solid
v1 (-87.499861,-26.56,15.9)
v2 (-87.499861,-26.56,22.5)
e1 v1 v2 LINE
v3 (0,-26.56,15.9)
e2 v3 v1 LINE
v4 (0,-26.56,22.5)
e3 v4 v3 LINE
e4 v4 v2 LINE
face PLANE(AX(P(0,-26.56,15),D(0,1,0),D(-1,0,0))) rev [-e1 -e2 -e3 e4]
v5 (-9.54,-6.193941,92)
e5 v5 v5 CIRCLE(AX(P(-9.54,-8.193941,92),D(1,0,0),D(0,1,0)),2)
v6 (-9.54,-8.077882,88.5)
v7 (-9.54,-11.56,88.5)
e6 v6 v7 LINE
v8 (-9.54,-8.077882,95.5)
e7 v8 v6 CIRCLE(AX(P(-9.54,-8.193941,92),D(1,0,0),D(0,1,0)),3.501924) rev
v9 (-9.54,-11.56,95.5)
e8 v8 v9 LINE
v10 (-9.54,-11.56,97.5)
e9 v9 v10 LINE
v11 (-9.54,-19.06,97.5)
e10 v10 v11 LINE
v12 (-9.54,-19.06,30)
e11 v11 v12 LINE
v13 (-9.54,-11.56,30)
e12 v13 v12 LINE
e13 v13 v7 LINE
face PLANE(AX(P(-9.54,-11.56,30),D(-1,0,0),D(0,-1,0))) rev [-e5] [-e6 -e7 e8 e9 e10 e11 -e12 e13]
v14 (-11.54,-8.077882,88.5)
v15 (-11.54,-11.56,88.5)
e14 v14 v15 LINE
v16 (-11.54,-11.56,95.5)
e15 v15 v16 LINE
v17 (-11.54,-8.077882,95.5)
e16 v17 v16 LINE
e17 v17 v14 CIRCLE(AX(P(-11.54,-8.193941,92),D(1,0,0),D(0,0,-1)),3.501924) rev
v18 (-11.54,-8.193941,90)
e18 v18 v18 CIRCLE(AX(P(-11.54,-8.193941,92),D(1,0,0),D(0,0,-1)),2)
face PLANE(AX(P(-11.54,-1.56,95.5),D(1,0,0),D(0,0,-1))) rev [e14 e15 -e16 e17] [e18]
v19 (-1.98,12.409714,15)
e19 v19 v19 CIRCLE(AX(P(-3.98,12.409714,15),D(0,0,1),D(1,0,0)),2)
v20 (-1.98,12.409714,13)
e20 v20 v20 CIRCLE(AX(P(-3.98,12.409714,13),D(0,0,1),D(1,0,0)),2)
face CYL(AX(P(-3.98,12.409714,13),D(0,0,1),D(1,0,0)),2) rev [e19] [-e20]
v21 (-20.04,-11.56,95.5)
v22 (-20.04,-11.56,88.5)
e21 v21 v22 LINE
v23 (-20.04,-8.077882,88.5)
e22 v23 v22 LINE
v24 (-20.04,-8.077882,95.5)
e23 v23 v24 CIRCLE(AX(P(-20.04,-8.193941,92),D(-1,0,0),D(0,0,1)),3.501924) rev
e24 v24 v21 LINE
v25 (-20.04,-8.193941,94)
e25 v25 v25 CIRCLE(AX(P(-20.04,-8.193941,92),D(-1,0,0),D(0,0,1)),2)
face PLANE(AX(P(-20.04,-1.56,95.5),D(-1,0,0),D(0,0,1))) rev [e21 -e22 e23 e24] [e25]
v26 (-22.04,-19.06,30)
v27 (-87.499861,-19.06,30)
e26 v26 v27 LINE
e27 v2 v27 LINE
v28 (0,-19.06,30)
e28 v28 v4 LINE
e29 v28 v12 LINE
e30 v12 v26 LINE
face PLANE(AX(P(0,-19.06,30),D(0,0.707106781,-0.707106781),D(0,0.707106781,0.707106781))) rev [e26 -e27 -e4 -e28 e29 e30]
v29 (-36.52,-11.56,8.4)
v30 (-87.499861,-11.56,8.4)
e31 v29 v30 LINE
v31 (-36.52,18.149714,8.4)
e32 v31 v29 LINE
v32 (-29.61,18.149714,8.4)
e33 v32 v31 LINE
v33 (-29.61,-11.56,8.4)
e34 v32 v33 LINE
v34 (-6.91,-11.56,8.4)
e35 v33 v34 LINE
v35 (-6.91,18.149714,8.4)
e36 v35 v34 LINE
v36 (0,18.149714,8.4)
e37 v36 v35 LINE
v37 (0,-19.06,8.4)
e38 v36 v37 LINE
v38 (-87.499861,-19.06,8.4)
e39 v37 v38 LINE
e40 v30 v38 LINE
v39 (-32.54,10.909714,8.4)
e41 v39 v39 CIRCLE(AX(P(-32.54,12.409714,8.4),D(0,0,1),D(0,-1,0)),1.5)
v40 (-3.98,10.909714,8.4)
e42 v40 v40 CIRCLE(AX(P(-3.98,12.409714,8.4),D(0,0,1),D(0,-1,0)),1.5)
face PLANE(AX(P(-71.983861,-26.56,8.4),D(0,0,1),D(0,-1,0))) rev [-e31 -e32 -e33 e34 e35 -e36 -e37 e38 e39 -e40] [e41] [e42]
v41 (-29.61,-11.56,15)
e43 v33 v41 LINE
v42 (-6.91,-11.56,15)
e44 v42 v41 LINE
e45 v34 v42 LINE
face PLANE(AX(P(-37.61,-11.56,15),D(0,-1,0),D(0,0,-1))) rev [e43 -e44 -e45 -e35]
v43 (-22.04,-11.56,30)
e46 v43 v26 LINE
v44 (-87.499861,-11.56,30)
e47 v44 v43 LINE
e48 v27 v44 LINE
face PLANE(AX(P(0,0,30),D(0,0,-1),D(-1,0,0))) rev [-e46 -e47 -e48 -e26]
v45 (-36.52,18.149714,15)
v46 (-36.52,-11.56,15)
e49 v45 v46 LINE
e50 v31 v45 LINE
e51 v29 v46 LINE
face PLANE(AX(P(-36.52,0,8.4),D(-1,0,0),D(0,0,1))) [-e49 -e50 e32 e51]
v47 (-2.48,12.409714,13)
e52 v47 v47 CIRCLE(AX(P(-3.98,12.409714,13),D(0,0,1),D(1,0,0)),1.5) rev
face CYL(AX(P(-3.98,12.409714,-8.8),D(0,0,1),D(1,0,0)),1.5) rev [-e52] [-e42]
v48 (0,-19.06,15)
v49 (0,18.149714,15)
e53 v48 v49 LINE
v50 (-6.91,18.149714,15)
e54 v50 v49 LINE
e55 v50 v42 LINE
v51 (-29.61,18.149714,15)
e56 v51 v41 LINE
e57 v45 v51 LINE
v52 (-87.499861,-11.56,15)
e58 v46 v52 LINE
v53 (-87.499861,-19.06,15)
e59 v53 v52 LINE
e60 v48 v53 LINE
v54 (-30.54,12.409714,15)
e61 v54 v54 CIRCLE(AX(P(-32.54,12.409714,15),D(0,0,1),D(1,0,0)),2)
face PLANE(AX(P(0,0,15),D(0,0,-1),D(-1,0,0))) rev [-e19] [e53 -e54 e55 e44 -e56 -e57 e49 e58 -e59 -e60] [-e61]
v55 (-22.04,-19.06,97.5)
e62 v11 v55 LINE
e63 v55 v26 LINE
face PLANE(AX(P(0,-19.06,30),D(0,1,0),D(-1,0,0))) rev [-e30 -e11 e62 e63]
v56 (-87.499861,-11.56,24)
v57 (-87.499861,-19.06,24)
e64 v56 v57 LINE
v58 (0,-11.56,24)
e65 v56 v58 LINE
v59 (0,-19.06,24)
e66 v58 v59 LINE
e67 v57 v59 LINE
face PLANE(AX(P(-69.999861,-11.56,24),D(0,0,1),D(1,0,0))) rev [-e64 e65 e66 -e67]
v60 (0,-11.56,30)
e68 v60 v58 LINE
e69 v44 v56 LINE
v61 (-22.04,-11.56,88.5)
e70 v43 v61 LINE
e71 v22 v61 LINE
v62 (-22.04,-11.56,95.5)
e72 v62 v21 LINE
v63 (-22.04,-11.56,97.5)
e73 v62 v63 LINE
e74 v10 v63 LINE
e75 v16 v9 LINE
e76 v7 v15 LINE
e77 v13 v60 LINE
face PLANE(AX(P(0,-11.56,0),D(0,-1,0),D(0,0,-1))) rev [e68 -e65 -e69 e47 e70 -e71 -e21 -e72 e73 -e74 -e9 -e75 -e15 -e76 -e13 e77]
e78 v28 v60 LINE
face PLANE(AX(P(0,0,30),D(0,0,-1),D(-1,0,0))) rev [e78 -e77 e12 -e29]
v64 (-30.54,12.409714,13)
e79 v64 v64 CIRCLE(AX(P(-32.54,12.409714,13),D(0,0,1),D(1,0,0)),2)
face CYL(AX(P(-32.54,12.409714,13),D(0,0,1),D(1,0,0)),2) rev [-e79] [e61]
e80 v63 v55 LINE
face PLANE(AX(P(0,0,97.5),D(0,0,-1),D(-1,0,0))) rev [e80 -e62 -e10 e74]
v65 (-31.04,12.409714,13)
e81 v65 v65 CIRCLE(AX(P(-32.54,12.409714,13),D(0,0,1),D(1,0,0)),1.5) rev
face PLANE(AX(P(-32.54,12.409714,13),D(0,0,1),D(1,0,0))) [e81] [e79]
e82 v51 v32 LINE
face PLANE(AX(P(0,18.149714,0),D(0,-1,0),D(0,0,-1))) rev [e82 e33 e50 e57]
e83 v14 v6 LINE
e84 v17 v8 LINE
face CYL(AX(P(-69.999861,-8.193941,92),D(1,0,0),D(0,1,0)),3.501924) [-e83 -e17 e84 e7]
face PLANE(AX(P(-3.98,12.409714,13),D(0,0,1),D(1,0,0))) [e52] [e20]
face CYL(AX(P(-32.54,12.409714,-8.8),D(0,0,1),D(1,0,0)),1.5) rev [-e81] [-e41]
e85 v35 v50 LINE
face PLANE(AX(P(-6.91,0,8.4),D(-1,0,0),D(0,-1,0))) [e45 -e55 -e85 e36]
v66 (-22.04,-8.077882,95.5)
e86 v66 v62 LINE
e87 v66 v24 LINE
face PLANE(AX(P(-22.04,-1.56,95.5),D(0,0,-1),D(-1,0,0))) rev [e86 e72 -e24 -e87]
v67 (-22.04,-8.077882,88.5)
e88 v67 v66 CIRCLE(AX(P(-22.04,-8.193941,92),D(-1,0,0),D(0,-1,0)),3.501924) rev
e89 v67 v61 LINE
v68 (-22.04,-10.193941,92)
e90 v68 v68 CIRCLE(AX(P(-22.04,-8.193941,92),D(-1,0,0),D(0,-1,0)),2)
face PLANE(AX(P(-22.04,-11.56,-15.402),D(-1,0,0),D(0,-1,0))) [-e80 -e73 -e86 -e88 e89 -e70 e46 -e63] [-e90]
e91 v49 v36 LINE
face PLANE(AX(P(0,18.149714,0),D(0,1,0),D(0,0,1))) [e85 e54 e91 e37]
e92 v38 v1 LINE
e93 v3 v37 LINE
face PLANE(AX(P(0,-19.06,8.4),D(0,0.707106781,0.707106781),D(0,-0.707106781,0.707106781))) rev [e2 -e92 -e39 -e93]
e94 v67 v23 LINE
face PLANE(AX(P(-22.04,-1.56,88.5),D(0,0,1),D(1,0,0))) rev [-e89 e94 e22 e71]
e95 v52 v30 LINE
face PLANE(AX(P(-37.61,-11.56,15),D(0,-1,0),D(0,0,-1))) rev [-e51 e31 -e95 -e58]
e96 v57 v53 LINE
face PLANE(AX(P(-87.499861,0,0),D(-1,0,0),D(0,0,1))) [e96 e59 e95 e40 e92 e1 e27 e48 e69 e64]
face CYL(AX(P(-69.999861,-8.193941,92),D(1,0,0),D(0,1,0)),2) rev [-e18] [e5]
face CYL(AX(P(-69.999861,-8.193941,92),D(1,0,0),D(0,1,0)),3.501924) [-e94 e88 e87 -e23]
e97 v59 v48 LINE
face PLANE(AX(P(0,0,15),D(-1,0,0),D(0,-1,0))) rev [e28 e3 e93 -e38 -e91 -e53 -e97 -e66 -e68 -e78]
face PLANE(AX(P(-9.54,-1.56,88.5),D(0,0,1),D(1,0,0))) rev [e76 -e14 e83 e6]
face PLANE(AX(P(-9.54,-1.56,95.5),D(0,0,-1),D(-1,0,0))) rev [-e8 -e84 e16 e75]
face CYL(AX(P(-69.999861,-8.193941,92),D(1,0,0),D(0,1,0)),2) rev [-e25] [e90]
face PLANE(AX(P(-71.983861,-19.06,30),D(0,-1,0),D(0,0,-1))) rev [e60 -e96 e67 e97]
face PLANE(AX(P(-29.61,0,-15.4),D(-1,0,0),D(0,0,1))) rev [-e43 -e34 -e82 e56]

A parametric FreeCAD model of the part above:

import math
import FreeCAD as App
import Part
import Sketcher

V = App.Vector


def add_polygon(sketch, points):
    """Adds a closed chain of lines whose ends are joined by coincident constraints."""
    first, n = sketch.GeometryCount, len(points)
    for a, b in zip(points, points[1:] + points[:1]):
        sketch.addGeometry(Part.LineSegment(App.Vector(*a, 0), App.Vector(*b, 0)), False)
    for i in range(n):
        sketch.addConstraint(Sketcher.Constraint("Coincident", first + i, 2, first + (i + 1) % n, 1))

doc = App.newDocument("Part")
body = doc.addObject("PartDesign::Body", "Body")

sketch1 = doc.addObject("Sketcher::SketchObject", "Sketch")
body.addObject(sketch1)
sketch1.AttachmentSupport = (doc.XY_Plane, [""])
sketch1.MapMode = "FlatFace"
add_polygon(sketch1, [(0, -27), (0, 0), (-15, 0), (-15, -12), (-38, -12), (-38, 0), (-53, 0), (-53, -12), (-72, -12), (-72, -27)])
sketch1.addConstraint([
    Sketcher.Constraint("Vertical", 0),
    Sketcher.Constraint("Horizontal", 1),
    Sketcher.Constraint("Vertical", 2),
    Sketcher.Constraint("Horizontal", 3),
    Sketcher.Constraint("Vertical", 4),
    Sketcher.Constraint("Horizontal", 5),
    Sketcher.Constraint("Vertical", 6),
    Sketcher.Constraint("Horizontal", 7),
    Sketcher.Constraint("Vertical", 8),
    Sketcher.Constraint("Horizontal", 9),
    Sketcher.Constraint("Coincident", 0, 2, -1, 1),
    Sketcher.Constraint("PointOnObject", 4, 2, -1),
    Sketcher.Constraint("Horizontal", 3, 2, 6, 2),
    Sketcher.Constraint("Equal", 1, 5),
    Sketcher.Constraint("Equal", 5, 8),
    Sketcher.Constraint("DistanceX", 1, 2, 1, 1, 15.0),
    Sketcher.Constraint("DistanceX", 3, 2, 3, 1, 22.61),
    Sketcher.Constraint("DistanceY", 0, 1, 0, 2, 26.56),
    Sketcher.Constraint("DistanceX", 7, 2, 7, 1, 19.373861),
])
pad1 = doc.addObject("PartDesign::Pad", "Pad")
body.addObject(pad1)
pad1.Profile = sketch1
pad1.Length = 15

sketch2 = doc.addObject("Sketcher::SketchObject", "Sketch001")
body.addObject(sketch2)
sketch2.AttachmentSupport = (doc.XY_Plane, [""])
sketch2.MapMode = "FlatFace"
sketch2.AttachmentOffset = App.Placement(V(0, 0, 15), App.Rotation())
add_polygon(sketch2, [(-72, -19), (-72, -27), (0, -27), (0, -19)])
sketch2.addConstraint([
    Sketcher.Constraint("Vertical", 0),
    Sketcher.Constraint("Horizontal", 1),
    Sketcher.Constraint("Vertical", 2),
    Sketcher.Constraint("Horizontal", 3),
    Sketcher.Constraint("PointOnObject", 1, 2, -2),
    Sketcher.Constraint("DistanceY", 0, 2, 0, 1, 7.5),
    Sketcher.Constraint("DistanceY", 0, 2, -1, 1, 26.56),
    Sketcher.Constraint("DistanceX", 1, 1, 1, 2, 71.983861),
])
pad2 = doc.addObject("PartDesign::Pad", "Pad001")
body.addObject(pad2)
pad2.Profile = sketch2
pad2.Length = 15

sketch3 = doc.addObject("Sketcher::SketchObject", "Sketch002")
body.addObject(sketch3)
sketch3.AttachmentSupport = (doc.XZ_Plane, [""])
sketch3.MapMode = "FlatFace"
sketch3.AttachmentOffset = App.Placement(V(0, 0, 19.06), App.Rotation())
add_polygon(sketch3, [(-72, 22), (-72, 30), (0, 30), (0, 22)])
sketch3.addConstraint([
    Sketcher.Constraint("Vertical", 0),
    Sketcher.Constraint("Horizontal", 1),
    Sketcher.Constraint("Vertical", 2),
    Sketcher.Constraint("Horizontal", 3),
    Sketcher.Constraint("PointOnObject", 1, 2, -2),
    Sketcher.Constraint("DistanceY", 0, 1, 0, 2, 7.5),
    Sketcher.Constraint("DistanceY", -1, 1, 0, 2, 30.0),
    Sketcher.Constraint("DistanceX", 1, 1, 1, 2, 71.983861),
])
pad3 = doc.addObject("PartDesign::Pad", "Pad002")
body.addObject(pad3)
pad3.Profile = sketch3
pad3.Length = 7.5
pad3.Reversed = True

sketch4 = doc.addObject("Sketcher::SketchObject", "Sketch003")
body.addObject(sketch4)
sketch4.AttachmentSupport = (doc.YZ_Plane, [""])
sketch4.MapMode = "FlatFace"
add_polygon(sketch4, [(0, 8), (-27, 8), (-27, 0), (0, 0)])
sketch4.addConstraint([
    Sketcher.Constraint("Horizontal", 0),
    Sketcher.Constraint("Vertical", 1),
    Sketcher.Constraint("Horizontal", 2),
    Sketcher.Constraint("Vertical", 3),
    Sketcher.Constraint("Coincident", 2, 2, -1, 1),
    Sketcher.Constraint("DistanceY", 1, 2, 1, 1, 8.4),
    Sketcher.Constraint("DistanceX", 0, 2, 0, 1, 26.56),
])
pocket1 = doc.addObject("PartDesign::Pocket", "Pocket")
body.addObject(pocket1)
pocket1.Profile = sketch4
pocket1.Type = "ThroughAll"

sketch5 = doc.addObject("Sketcher::SketchObject", "Sketch004")
body.addObject(sketch5)
sketch5.AttachmentSupport = (doc.XY_Plane, [""])
sketch5.MapMode = "FlatFace"
sketch5.AttachmentOffset = App.Placement(V(0, 0, 8.4), App.Rotation())
add_polygon(sketch5, [(0, -17), (0, -27), (-72, -27), (-72, -17)])
sketch5.addConstraint([
    Sketcher.Constraint("Vertical", 0),
    Sketcher.Constraint("Horizontal", 1),
    Sketcher.Constraint("Vertical", 2),
    Sketcher.Constraint("Horizontal", 3),
    Sketcher.Constraint("PointOnObject", 0, 2, -2),
    Sketcher.Constraint("DistanceY", 0, 2, 0, 1, 10.0),
    Sketcher.Constraint("DistanceY", 0, 2, -1, 1, 26.56),
    Sketcher.Constraint("DistanceX", 1, 2, 1, 1, 71.983861),
])
pad4 = doc.addObject("PartDesign::Pad", "Pad003")
body.addObject(pad4)
pad4.Profile = sketch5
pad4.Length = 23.8
pad4.Reversed = True

sketch6 = doc.addObject("Sketcher::SketchObject", "Sketch005")
body.addObject(sketch6)
sketch6.AttachmentSupport = (doc.YZ_Plane, [""])
sketch6.MapMode = "FlatFace"
sketch6.AttachmentOffset = App.Placement(V(0, 0, -71.983861), App.Rotation())
add_polygon(sketch6, [(3, -27), (-37, -27), (-37, 35), (3, 35)])
sketch6.addConstraint([
    Sketcher.Constraint("Horizontal", 0),
    Sketcher.Constraint("Vertical", 1),
    Sketcher.Constraint("Horizontal", 2),
    Sketcher.Constraint("Vertical", 3),
    Sketcher.Constraint("DistanceY", 1, 1, 1, 2, 61.591879),
    Sketcher.Constraint("DistanceX", 0, 2, 0, 1, 40.125144),
    Sketcher.Constraint("DistanceX", -1, 1, 2, 2, 2.90626),
    Sketcher.Constraint("DistanceY", 0, 2, -1, 1, 26.929156),
])
pocket2 = doc.addObject("PartDesign::Pocket", "Pocket001")
body.addObject(pocket2)
pocket2.Profile = sketch6
pocket2.Length = 1.984
pocket2.Reversed = True

sketch7 = doc.addObject("Sketcher::SketchObject", "Sketch006")
body.addObject(sketch7)
sketch7.AttachmentSupport = (doc.XY_Plane, [""])
sketch7.MapMode = "FlatFace"
sketch7.AttachmentOffset = App.Placement(V(0, 0, 15), App.Rotation())
add_polygon(sketch7, [(-15, 0), (-15, -12), (-5, -12), (-5, 0)])
sketch7.addConstraint([
    Sketcher.Constraint("Vertical", 0),
    Sketcher.Constraint("Horizontal", 1),
    Sketcher.Constraint("Vertical", 2),
    Sketcher.Constraint("Horizontal", 3),
    Sketcher.Constraint("PointOnObject", 2, 2, -1),
    Sketcher.Constraint("DistanceX", 0, 2, -1, 1, 15.0),
    Sketcher.Constraint("DistanceX", 1, 1, 1, 2, 10.09),
    Sketcher.Constraint("DistanceY", 0, 2, 0, 1, 11.56),
])
pocket3 = doc.addObject("PartDesign::Pocket", "Pocket002")
body.addObject(pocket3)
pocket3.Profile = sketch7
pocket3.Length = 10

sketch8 = doc.addObject("Sketcher::SketchObject", "Sketch007")
body.addObject(sketch8)
sketch8.AttachmentSupport = (doc.XY_Plane, [""])
sketch8.MapMode = "FlatFace"
sketch8.AttachmentOffset = App.Placement(V(0, 0, 8.4), App.Rotation())
add_polygon(sketch8, [(-27.6, 0), (-27.6, -11.6), (-32.5, -11.6), (-32.5, 0)])
sketch8.addConstraint([
    Sketcher.Constraint("Vertical", 0),
    Sketcher.Constraint("Horizontal", 1),
    Sketcher.Constraint("Vertical", 2),
    Sketcher.Constraint("Horizontal", 3),
    Sketcher.Constraint("PointOnObject", 2, 2, -1),
    Sketcher.Constraint("DistanceX", 1, 2, 1, 1, 4.91),
    Sketcher.Constraint("DistanceY", 0, 2, 0, 1, 11.56),
    Sketcher.Constraint("DistanceX", 0, 2, -1, 1, 27.61),
])
pad5 = doc.addObject("PartDesign::Pad", "Pad004")
body.addObject(pad5)
pad5.Profile = sketch8
pad5.Length = 6.6

sketch9 = doc.addObject("Sketcher::SketchObject", "Sketch008")
body.addObject(sketch9)
sketch9.AttachmentSupport = (doc.XY_Plane, [""])
sketch9.MapMode = "FlatFace"
sketch9.AttachmentOffset = App.Placement(V(0, 0, 30), App.Rotation())
add_polygon(sketch9, [(-20, -12), (-20, -27), (-8, -27), (-8, -12)])
sketch9.addConstraint([
    Sketcher.Constraint("Vertical", 0),
    Sketcher.Constraint("Horizontal", 1),
    Sketcher.Constraint("Vertical", 2),
    Sketcher.Constraint("Horizontal", 3),
    Sketcher.Constraint("DistanceY", 0, 2, 0, 1, 15.0),
    Sketcher.Constraint("DistanceX", 1, 1, 1, 2, 12.5),
    Sketcher.Constraint("DistanceX", 0, 2, -1, 1, 20.04),
    Sketcher.Constraint("DistanceY", 0, 2, -1, 1, 26.56),
])
pad6 = doc.addObject("PartDesign::Pad", "Pad005")
body.addObject(pad6)
pad6.Profile = sketch9
pad6.Length = 67.5

sketch10 = doc.addObject("Sketcher::SketchObject", "Sketch009")
body.addObject(sketch10)
sketch10.AttachmentSupport = (doc.XZ_Plane, [""])
sketch10.MapMode = "FlatFace"
sketch10.AttachmentOffset = App.Placement(V(0, 0, 16.56), App.Rotation())
add_polygon(sketch10, [(-28, -9), (-28, 8), (-5, 8), (-5, -9)])
sketch10.addConstraint([
    Sketcher.Constraint("Vertical", 0),
    Sketcher.Constraint("Horizontal", 1),
    Sketcher.Constraint("Vertical", 2),
    Sketcher.Constraint("Horizontal", 3),
    Sketcher.Constraint("DistanceX", 1, 1, 1, 2, 22.7),
    Sketcher.Constraint("DistanceY", 0, 1, 0, 2, 17.2),
    Sketcher.Constraint("DistanceY", -1, 1, 0, 2, 8.4),
    Sketcher.Constraint("DistanceX", 0, 2, -1, 1, 27.61),
])
pad7 = doc.addObject("PartDesign::Pad", "Pad006")
body.addObject(pad7)
pad7.Profile = sketch10
pad7.Length = 5
pad7.Reversed = True

sketch11 = doc.addObject("Sketcher::SketchObject", "Sketch010")
body.addObject(sketch11)
sketch11.AttachmentSupport = (doc.XY_Plane, [""])
sketch11.MapMode = "FlatFace"
sketch11.AttachmentOffset = App.Placement(V(0, 0, 8.4), App.Rotation())
add_polygon(sketch11, [(-38, 0), (-38, -12), (-53, -12), (-53, 0)])
sketch11.addConstraint([
    Sketcher.Constraint("Vertical", 0),
    Sketcher.Constraint("Horizontal", 1),
    Sketcher.Constraint("Vertical", 2),
    Sketcher.Constraint("Horizontal", 3),
    Sketcher.Constraint("PointOnObject", 2, 2, -1),
    Sketcher.Constraint("DistanceX", 1, 2, 1, 1, 15.0),
    Sketcher.Constraint("DistanceY", 0, 2, 0, 1, 11.56),
    Sketcher.Constraint("DistanceX", 0, 2, -1, 1, 37.61),
])
pocket4 = doc.addObject("PartDesign::Pocket", "Pocket003")
body.addObject(pocket4)
pocket4.Profile = sketch11
pocket4.Type = "ThroughAll"
pocket4.Reversed = True

sketch12 = doc.addObject("Sketcher::SketchObject", "Sketch011")
body.addObject(sketch12)
sketch12.AttachmentSupport = (doc.YZ_Plane, [""])
sketch12.MapMode = "FlatFace"
add_polygon(sketch12, [(-11.6, 24), (-19.1, 24), (-19.1, 22.5), (-11.6, 22.5)])
sketch12.addConstraint([
    Sketcher.Constraint("Horizontal", 0),
    Sketcher.Constraint("Vertical", 1),
    Sketcher.Constraint("Horizontal", 2),
    Sketcher.Constraint("Vertical", 3),
    Sketcher.Constraint("DistanceX", 0, 2, 0, 1, 7.5),
    Sketcher.Constraint("DistanceY", 1, 2, 1, 1, 1.5),
    Sketcher.Constraint("DistanceY", -1, 1, 0, 2, 24.0),
    Sketcher.Constraint("DistanceX", 0, 2, -1, 1, 19.06),
])
pocket5 = doc.addObject("PartDesign::Pocket", "Pocket004")
body.addObject(pocket5)
pocket5.Profile = sketch12
pocket5.Type = "ThroughAll"

sketch13 = doc.addObject("Sketcher::SketchObject", "Sketch012")
body.addObject(sketch13)
sketch13.AttachmentSupport = (doc.XY_Plane, [""])
sketch13.MapMode = "FlatFace"
sketch13.AttachmentOffset = App.Placement(V(0, 0, 97.5), App.Rotation())
add_polygon(sketch13, [(-22, -11.6), (-22, -26.6), (-20, -26.6), (-20, -11.6)])
sketch13.addConstraint([
    Sketcher.Constraint("Vertical", 0),
    Sketcher.Constraint("Horizontal", 1),
    Sketcher.Constraint("Vertical", 2),
    Sketcher.Constraint("Horizontal", 3),
    Sketcher.Constraint("DistanceX", 1, 1, 1, 2, 2.0),
    Sketcher.Constraint("DistanceY", 0, 2, 0, 1, 15.0),
    Sketcher.Constraint("DistanceX", 0, 2, -1, 1, 22.04),
    Sketcher.Constraint("DistanceY", 0, 2, -1, 1, 26.56),
])
pad8 = doc.addObject("PartDesign::Pad", "Pad007")
body.addObject(pad8)
pad8.Profile = sketch13
pad8.Type = "UpToFirst"
pad8.Reversed = True

sketch14 = doc.addObject("Sketcher::SketchObject", "Sketch013")
body.addObject(sketch14)
sketch14.AttachmentSupport = (doc.XY_Plane, [""])
sketch14.MapMode = "FlatFace"
sketch14.AttachmentOffset = App.Placement(V(0, 0, 97.5), App.Rotation())
add_polygon(sketch14, [(-9.5, -11.6), (-9.5, -26.6), (-7.5, -26.6), (-7.5, -11.6)])
sketch14.addConstraint([
    Sketcher.Constraint("Vertical", 0),
    Sketcher.Constraint("Horizontal", 1),
    Sketcher.Constraint("Vertical", 2),
    Sketcher.Constraint("Horizontal", 3),
    Sketcher.Constraint("DistanceX", 1, 1, 1, 2, 2.0),
    Sketcher.Constraint("DistanceY", 0, 2, 0, 1, 15.0),
    Sketcher.Constraint("DistanceX", 0, 2, -1, 1, 9.54),
    Sketcher.Constraint("DistanceY", 0, 2, -1, 1, 26.56),
])
pocket6 = doc.addObject("PartDesign::Pocket", "Pocket005")
body.addObject(pocket6)
pocket6.Profile = sketch14
pocket6.Length = 67.5

sketch15 = doc.addObject("Sketcher::SketchObject", "Sketch014")
body.addObject(sketch15)
sketch15.AttachmentSupport = (doc.XY_Plane, [""])
sketch15.MapMode = "FlatFace"
sketch15.AttachmentOffset = App.Placement(V(0, 0, 8.4), App.Rotation())
add_polygon(sketch15, [(-6.9, 0), (-6.9, -11.6), (-4.9, -11.6), (-4.9, 0)])
sketch15.addConstraint([
    Sketcher.Constraint("Vertical", 0),
    Sketcher.Constraint("Horizontal", 1),
    Sketcher.Constraint("Vertical", 2),
    Sketcher.Constraint("Horizontal", 3),
    Sketcher.Constraint("PointOnObject", 2, 2, -1),
    Sketcher.Constraint("DistanceX", 1, 1, 1, 2, 2.0),
    Sketcher.Constraint("DistanceY", 0, 2, 0, 1, 11.56),
    Sketcher.Constraint("DistanceX", 0, 2, -1, 1, 6.91),
])
pad9 = doc.addObject("PartDesign::Pad", "Pad008")
body.addObject(pad9)
pad9.Profile = sketch15
pad9.Length = 6.6

sketch16 = doc.addObject("Sketcher::SketchObject", "Sketch015")
body.addObject(sketch16)
sketch16.AttachmentSupport = (doc.XY_Plane, [""])
sketch16.MapMode = "FlatFace"
sketch16.AttachmentOffset = App.Placement(V(0, 0, 15), App.Rotation())
add_polygon(sketch16, [(-29.6, 0), (-29.6, -11.6), (-27.6, -11.6), (-27.6, 0)])
sketch16.addConstraint([
    Sketcher.Constraint("Vertical", 0),
    Sketcher.Constraint("Horizontal", 1),
    Sketcher.Constraint("Vertical", 2),
    Sketcher.Constraint("Horizontal", 3),
    Sketcher.Constraint("PointOnObject", 2, 2, -1),
    Sketcher.Constraint("DistanceX", 1, 1, 1, 2, 2.0),
    Sketcher.Constraint("DistanceY", 0, 2, 0, 1, 11.56),
    Sketcher.Constraint("DistanceX", 0, 2, -1, 1, 29.61),
])
pocket7 = doc.addObject("PartDesign::Pocket", "Pocket006")
body.addObject(pocket7)
pocket7.Profile = sketch16
pocket7.Type = "ThroughAll"

sketch17 = doc.addObject("Sketcher::SketchObject", "Sketch016")
body.addObject(sketch17)
sketch17.AttachmentSupport = (doc.XY_Plane, [""])
sketch17.MapMode = "FlatFace"
sketch17.AttachmentOffset = App.Placement(V(0, 0, 15), App.Rotation())
add_polygon(sketch17, [(-36.5, 0), (-36.5, -11.6), (-32.5, -11.6), (-32.5, 0)])
sketch17.addConstraint([
    Sketcher.Constraint("Vertical", 0),
    Sketcher.Constraint("Horizontal", 1),
    Sketcher.Constraint("Vertical", 2),
    Sketcher.Constraint("Horizontal", 3),
    Sketcher.Constraint("PointOnObject", 2, 2, -1),
    Sketcher.Constraint("DistanceX", 1, 1, 1, 2, 4.0),
    Sketcher.Constraint("DistanceY", 0, 2, 0, 1, 11.56),
    Sketcher.Constraint("DistanceX", 0, 2, -1, 1, 36.52),
])
pad10 = doc.addObject("PartDesign::Pad", "Pad009")
body.addObject(pad10)
pad10.Profile = sketch17
pad10.Length = 6.6
pad10.Reversed = True

sketch18 = doc.addObject("Sketcher::SketchObject", "Sketch017")
body.addObject(sketch18)
sketch18.AttachmentSupport = (doc.XZ_Plane, [""])
sketch18.MapMode = "FlatFace"
sketch18.AttachmentOffset = App.Placement(V(0, 0, 11.56), App.Rotation())
add_polygon(sketch18, [(-6.9, -8.8), (-6.9, 8.4), (-4.9, 8.4), (-4.9, -8.8)])
sketch18.addConstraint([
    Sketcher.Constraint("Vertical", 0),
    Sketcher.Constraint("Horizontal", 1),
    Sketcher.Constraint("Vertical", 2),
    Sketcher.Constraint("Horizontal", 3),
    Sketcher.Constraint("DistanceX", 1, 1, 1, 2, 2.0),
    Sketcher.Constraint("DistanceY", 0, 1, 0, 2, 17.2),
    Sketcher.Constraint("DistanceY", -1, 1, 0, 2, 8.4),
    Sketcher.Constraint("DistanceX", 0, 2, -1, 1, 6.91),
])
pocket8 = doc.addObject("PartDesign::Pocket", "Pocket007")
body.addObject(pocket8)
pocket8.Profile = sketch18
pocket8.Length = 5
pocket8.Reversed = True

sketch19 = doc.addObject("Sketcher::SketchObject", "Sketch018")
body.addObject(sketch19)
sketch19.AttachmentSupport = (doc.XZ_Plane, [""])
sketch19.MapMode = "FlatFace"
sketch19.AttachmentOffset = App.Placement(V(0, 0, 11.56), App.Rotation())
add_polygon(sketch19, [(-29.6, -8.8), (-29.6, 8.4), (-27.6, 8.4), (-27.6, -8.8)])
sketch19.addConstraint([
    Sketcher.Constraint("Vertical", 0),
    Sketcher.Constraint("Horizontal", 1),
    Sketcher.Constraint("Vertical", 2),
    Sketcher.Constraint("Horizontal", 3),
    Sketcher.Constraint("DistanceX", 1, 1, 1, 2, 2.0),
    Sketcher.Constraint("DistanceY", 0, 1, 0, 2, 17.2),
    Sketcher.Constraint("DistanceY", -1, 1, 0, 2, 8.4),
    Sketcher.Constraint("DistanceX", 0, 2, -1, 1, 29.61),
])
pad11 = doc.addObject("PartDesign::Pad", "Pad010")
body.addObject(pad11)
pad11.Profile = sketch19
pad11.Length = 15

sketch20 = doc.addObject("Sketcher::SketchObject", "Sketch019")
body.addObject(sketch20)
sketch20.AttachmentSupport = (doc.XZ_Plane, [""])
sketch20.MapMode = "FlatFace"
sketch20.AttachmentOffset = App.Placement(V(0, 0, 16.56), App.Rotation())
add_polygon(sketch20, [(-70, -15), (-70, 8), (-30, 8), (-30, -15)])
sketch20.addConstraint([
    Sketcher.Constraint("Vertical", 0),
    Sketcher.Constraint("Horizontal", 1),
    Sketcher.Constraint("Vertical", 2),
    Sketcher.Constraint("Horizontal", 3),
    Sketcher.Constraint("DistanceY", 0, 1, 0, 2, 23.8),
    Sketcher.Constraint("DistanceY", -1, 1, 0, 2, 8.4),
    Sketcher.Constraint("DistanceX", 1, 2, -1, 1, 29.61),
    Sketcher.Constraint("DistanceX", 1, 1, 1, 2, 40.389861),
])
pocket9 = doc.addObject("PartDesign::Pocket", "Pocket008")
body.addObject(pocket9)
pocket9.Profile = sketch20
pocket9.Type = "ThroughAll"
pocket9.Reversed = True

sketch21 = doc.addObject("Sketcher::SketchObject", "Sketch020")
body.addObject(sketch21)
sketch21.AttachmentSupport = (doc.XZ_Plane, [""])
sketch21.MapMode = "FlatFace"
sketch21.AttachmentOffset = App.Placement(V(0, 0, 16.56), App.Rotation())
add_polygon(sketch21, [(-7, -15), (-7, 8), (0, 8), (0, -15)])
sketch21.addConstraint([
    Sketcher.Constraint("Vertical", 0),
    Sketcher.Constraint("Horizontal", 1),
    Sketcher.Constraint("Vertical", 2),
    Sketcher.Constraint("Horizontal", 3),
    Sketcher.Constraint("PointOnObject", 1, 2, -2),
    Sketcher.Constraint("DistanceY", 0, 1, 0, 2, 23.8),
    Sketcher.Constraint("DistanceX", 1, 1, 1, 2, 6.91),
    Sketcher.Constraint("DistanceY", -1, 1, 0, 2, 8.4),
])
pocket10 = doc.addObject("PartDesign::Pocket", "Pocket009")
body.addObject(pocket10)
pocket10.Profile = sketch21
pocket10.Type = "ThroughAll"
pocket10.Reversed = True

sketch22 = doc.addObject("Sketcher::SketchObject", "Sketch021")
body.addObject(sketch22)
sketch22.AttachmentSupport = (doc.XZ_Plane, [""])
sketch22.MapMode = "FlatFace"
sketch22.AttachmentOffset = App.Placement(V(0, 0, 16.56), App.Rotation())
add_polygon(sketch22, [(-30, -15), (-30, -9), (-7, -9), (-7, -15)])
sketch22.addConstraint([
    Sketcher.Constraint("Vertical", 0),
    Sketcher.Constraint("Horizontal", 1),
    Sketcher.Constraint("Vertical", 2),
    Sketcher.Constraint("Horizontal", 3),
    Sketcher.Constraint("DistanceX", 1, 1, 1, 2, 22.7),
    Sketcher.Constraint("DistanceY", 0, 1, 0, 2, 6.6),
    Sketcher.Constraint("DistanceY", 0, 2, -1, 1, 8.8),
    Sketcher.Constraint("DistanceX", 0, 2, -1, 1, 29.61),
])
pocket11 = doc.addObject("PartDesign::Pocket", "Pocket010")
body.addObject(pocket11)
pocket11.Profile = sketch22
pocket11.Type = "ThroughAll"
pocket11.Reversed = True

sketch23 = doc.addObject("Sketcher::SketchObject", "Sketch022")
body.addObject(sketch23)
sketch23.AttachmentSupport = (doc.YZ_Plane, [""])
sketch23.MapMode = "FlatFace"
sketch23.AttachmentOffset = App.Placement(V(0, 0, -29.61), App.Rotation())
add_polygon(sketch23, [(-19, -9), (-27, -9), (-27, 8), (-19, 8)])
sketch23.addConstraint([
    Sketcher.Constraint("Horizontal", 0),
    Sketcher.Constraint("Vertical", 1),
    Sketcher.Constraint("Horizontal", 2),
    Sketcher.Constraint("Vertical", 3),
    Sketcher.Constraint("DistanceX", 0, 2, 0, 1, 7.5),
    Sketcher.Constraint("DistanceY", 1, 1, 1, 2, 17.2),
    Sketcher.Constraint("DistanceY", 0, 2, -1, 1, 8.8),
    Sketcher.Constraint("DistanceX", 0, 2, -1, 1, 26.56),
])
pocket12 = doc.addObject("PartDesign::Pocket", "Pocket011")
body.addObject(pocket12)
pocket12.Profile = sketch23
pocket12.Type = "ThroughAll"
pocket12.Reversed = True

sketch24 = doc.addObject("Sketcher::SketchObject", "Sketch023")
body.addObject(sketch24)
sketch24.AttachmentSupport = (doc.XY_Plane, [""])
sketch24.MapMode = "FlatFace"
sketch24.AttachmentOffset = App.Placement(V(0, 0, 8.4), App.Rotation())
sketch24.addGeometry(Part.Circle(V(-4, -5.7, 0), V(0, 0, 1), 1.1), False)
sketch24.addConstraint([
    Sketcher.Constraint("Diameter", 0, 2.1),
    Sketcher.Constraint("DistanceX", 0, 3, -1, 1, 3.98),
    Sketcher.Constraint("DistanceY", 0, 3, -1, 1, 5.74),
])
pocket13 = doc.addObject("PartDesign::Pocket", "Pocket012")
body.addObject(pocket13)
pocket13.Profile = sketch24
pocket13.Type = "ThroughAll"
pocket13.Reversed = True

sketch25 = doc.addObject("Sketcher::SketchObject", "Sketch024")
body.addObject(sketch25)
sketch25.AttachmentSupport = (doc.XY_Plane, [""])
sketch25.MapMode = "FlatFace"
sketch25.AttachmentOffset = App.Placement(V(0, 0, 8.4), App.Rotation())
sketch25.addGeometry(Part.Circle(V(-32.5, -5.7, 0), V(0, 0, 1), 1.1), False)
sketch25.addConstraint([
    Sketcher.Constraint("Diameter", 0, 2.1),
    Sketcher.Constraint("DistanceX", 0, 3, -1, 1, 32.54),
    Sketcher.Constraint("DistanceY", 0, 3, -1, 1, 5.74),
])
pocket14 = doc.addObject("PartDesign::Pocket", "Pocket013")
body.addObject(pocket14)
pocket14.Profile = sketch25
pocket14.Type = "ThroughAll"
pocket14.Reversed = True

sketch26 = doc.addObject("Sketcher::SketchObject", "Sketch025")
body.addObject(sketch26)
sketch26.AttachmentSupport = (doc.YZ_Plane, [""])
sketch26.MapMode = "FlatFace"
sketch26.AttachmentOffset = App.Placement(V(0, 0, -22.04), App.Rotation())
add_polygon(sketch26, [(-19, 30), (-27, 30), (-27, 98), (-19, 98)])
sketch26.addConstraint([
    Sketcher.Constraint("Horizontal", 0),
    Sketcher.Constraint("Vertical", 1),
    Sketcher.Constraint("Horizontal", 2),
    Sketcher.Constraint("Vertical", 3),
    Sketcher.Constraint("DistanceX", 0, 2, 0, 1, 7.5),
    Sketcher.Constraint("DistanceY", 1, 1, 1, 2, 67.5),
    Sketcher.Constraint("DistanceY", -1, 1, 0, 2, 30.0),
    Sketcher.Constraint("DistanceX", 0, 2, -1, 1, 26.56),
])
pocket15 = doc.addObject("PartDesign::Pocket", "Pocket014")
body.addObject(pocket15)
pocket15.Profile = sketch26
pocket15.Type = "ThroughAll"
pocket15.Reversed = True

sketch27 = doc.addObject("Sketcher::SketchObject", "Sketch026")
body.addObject(sketch27)
sketch27.AttachmentSupport = (doc.YZ_Plane, [""])
sketch27.MapMode = "FlatFace"
sketch27.AttachmentOffset = App.Placement(V(0, 0, -69.999861), App.Rotation())
add_polygon(sketch27, [(-27, 16), (-19, 8), (-27, 8)])
sketch27.addConstraint([
    Sketcher.Constraint("Horizontal", 1),
    Sketcher.Constraint("Vertical", 2),
    Sketcher.Constraint("Equal", 1, 2),
    Sketcher.Constraint("DistanceX", 1, 2, 1, 1, 7.5),
    Sketcher.Constraint("DistanceY", -1, 1, 0, 2, 8.4),
    Sketcher.Constraint("DistanceX", 0, 2, -1, 1, 19.06),
])
pocket16 = doc.addObject("PartDesign::Pocket", "Pocket015")
body.addObject(pocket16)
pocket16.Profile = sketch27
pocket16.Type = "ThroughAll"
pocket16.Reversed = True

sketch28 = doc.addObject("Sketcher::SketchObject", "Sketch027")
body.addObject(sketch28)
sketch28.AttachmentSupport = (doc.YZ_Plane, [""])
sketch28.MapMode = "FlatFace"
sketch28.AttachmentOffset = App.Placement(V(0, 0, -69.999861), App.Rotation())
add_polygon(sketch28, [(-19, 30), (-27, 22), (-27, 30)])
sketch28.addConstraint([
    Sketcher.Constraint("Vertical", 1),
    Sketcher.Constraint("Horizontal", 2),
    Sketcher.Constraint("Equal", 2, 1),
    Sketcher.Constraint("DistanceX", 2, 1, 2, 2, 7.5),
    Sketcher.Constraint("DistanceY", -1, 1, 1, 2, 30.0),
    Sketcher.Constraint("DistanceX", 0, 2, -1, 1, 26.56),
])
pocket17 = doc.addObject("PartDesign::Pocket", "Pocket016")
body.addObject(pocket17)
pocket17.Profile = sketch28
pocket17.Type = "ThroughAll"
pocket17.Reversed = True

sketch29 = doc.addObject("Sketcher::SketchObject", "Sketch028")
body.addObject(sketch29)
sketch29.AttachmentSupport = (doc.XZ_Plane, [""])
sketch29.MapMode = "FlatFace"
sketch29.AttachmentOffset = App.Placement(V(0, 0, 11.56), App.Rotation())
add_polygon(sketch29, [(-22, 88.5), (-22, 95.5), (-20, 95.5), (-20, 88.5)])
sketch29.addConstraint([
    Sketcher.Constraint("Vertical", 0),
    Sketcher.Constraint("Horizontal", 1),
    Sketcher.Constraint("Vertical", 2),
    Sketcher.Constraint("Horizontal", 3),
    Sketcher.Constraint("DistanceX", 1, 1, 1, 2, 2.0),
    Sketcher.Constraint("DistanceY", 0, 1, 0, 2, 7.0),
    Sketcher.Constraint("DistanceY", -1, 1, 0, 2, 95.5),
    Sketcher.Constraint("DistanceX", 0, 2, -1, 1, 22.04),
])
pad12 = doc.addObject("PartDesign::Pad", "Pad011")
body.addObject(pad12)
pad12.Profile = sketch29
pad12.Length = 10
pad12.Reversed = True

sketch30 = doc.addObject("Sketcher::SketchObject", "Sketch029")
body.addObject(sketch30)
sketch30.AttachmentSupport = (doc.XZ_Plane, [""])
sketch30.MapMode = "FlatFace"
sketch30.AttachmentOffset = App.Placement(V(0, 0, 11.56), App.Rotation())
add_polygon(sketch30, [(-11.5, 88.5), (-11.5, 95.5), (-9.5, 95.5), (-9.5, 88.5)])
sketch30.addConstraint([
    Sketcher.Constraint("Vertical", 0),
    Sketcher.Constraint("Horizontal", 1),
    Sketcher.Constraint("Vertical", 2),
    Sketcher.Constraint("Horizontal", 3),
    Sketcher.Constraint("DistanceX", 1, 1, 1, 2, 2.0),
    Sketcher.Constraint("DistanceY", 0, 1, 0, 2, 7.0),
    Sketcher.Constraint("DistanceY", -1, 1, 0, 2, 95.5),
    Sketcher.Constraint("DistanceX", 0, 2, -1, 1, 11.54),
])
pad13 = doc.addObject("PartDesign::Pad", "Pad012")
body.addObject(pad13)
pad13.Profile = sketch30
pad13.Length = 10
pad13.Reversed = True

sketch31 = doc.addObject("Sketcher::SketchObject", "Sketch030")
body.addObject(sketch31)
sketch31.AttachmentSupport = (doc.YZ_Plane, [""])
sketch31.MapMode = "FlatFace"
sketch31.AttachmentOffset = App.Placement(V(0, 0, -9.54), App.Rotation())
sketch31.addGeometry([
    Part.LineSegment(V(-1.6, 95.5, 0), V(-5.1, 95.5, 0)),
    Part.ArcOfCircle(Part.Circle(V(-5.1, 92, 0), V(0, 0, 1), 3.5), math.radians(0), math.radians(90)),
    Part.LineSegment(V(-1.6, 92, 0), V(-1.6, 95.5, 0)),
    Part.ArcOfCircle(Part.Circle(V(-5.1, 92, 0), V(0, 0, 1), 3.5), math.radians(-90), math.radians(0)),
    Part.LineSegment(V(-5.1, 88.5, 0), V(-1.6, 88.5, 0)),
    Part.LineSegment(V(-1.6, 88.5, 0), V(-1.6, 92, 0)),
], False)
sketch31.addConstraint([
    Sketcher.Constraint("Tangent", 0, 2, 1, 2),
    Sketcher.Constraint("Tangent", 1, 1, 2, 1),
    Sketcher.Constraint("Coincident", 2, 2, 0, 1),
    Sketcher.Constraint("Tangent", 3, 1, 4, 1),
    Sketcher.Constraint("Coincident", 4, 2, 5, 1),
    Sketcher.Constraint("Tangent", 5, 2, 3, 2),
    Sketcher.Constraint("Horizontal", 0),
    Sketcher.Constraint("Vertical", 2),
    Sketcher.Constraint("Horizontal", 4),
    Sketcher.Constraint("Vertical", 5),
    Sketcher.Constraint("Coincident", 3, 3, 1, 3),
    Sketcher.Constraint("Equal", 1, 3),
    Sketcher.Constraint("Radius", 1, 3.5),
    Sketcher.Constraint("DistanceY", -1, 1, 1, 3, 92.0),
    Sketcher.Constraint("DistanceX", 1, 3, -1, 1, 5.06),
])
pocket18 = doc.addObject("PartDesign::Pocket", "Pocket017")
body.addObject(pocket18)
pocket18.Profile = sketch31
pocket18.Type = "ThroughAll"

sketch32 = doc.addObject("Sketcher::SketchObject", "Sketch031")
body.addObject(sketch32)
sketch32.AttachmentSupport = (doc.YZ_Plane, [""])
sketch32.MapMode = "FlatFace"
sketch32.AttachmentOffset = App.Placement(V(0, 0, -9.54), App.Rotation())
sketch32.addGeometry([
    Part.ArcOfCircle(Part.Circle(V(-8.2, 92, 0), V(0, 0, 1), 3.5), math.radians(-88), math.radians(88)),
    Part.LineSegment(V(-8.1, 88.5, 0), V(-5.1, 88.5, 0)),
    Part.ArcOfCircle(Part.Circle(V(-5.1, 92, 0), V(0, 0, 1), 3.5), math.radians(-90), math.radians(90)),
    Part.LineSegment(V(-5.1, 95.5, 0), V(-8.1, 95.5, 0)),
], False)
sketch32.addConstraint([
    Sketcher.Constraint("Coincident", 0, 1, 1, 1),
    Sketcher.Constraint("Tangent", 1, 2, 2, 1),
    Sketcher.Constraint("Tangent", 2, 2, 3, 1),
    Sketcher.Constraint("Coincident", 3, 2, 0, 2),
    Sketcher.Constraint("Horizontal", 1),
    Sketcher.Constraint("Horizontal", 3),
    Sketcher.Constraint("Horizontal", 0, 3, 2, 3),
    Sketcher.Constraint("Radius", 2, 3.5),
    Sketcher.Constraint("DistanceY", -1, 1, 0, 3, 92.0),
    Sketcher.Constraint("DistanceX", 2, 3, -1, 1, 5.06),
    Sketcher.Constraint("Radius", 0, 3.501924),
    Sketcher.Constraint("DistanceX", 1, 1, 1, 2, 3.017882),
])
pocket19 = doc.addObject("PartDesign::Pocket", "Pocket018")
body.addObject(pocket19)
pocket19.Profile = sketch32
pocket19.Type = "ThroughAll"

sketch33 = doc.addObject("Sketcher::SketchObject", "Sketch032")
body.addObject(sketch33)
sketch33.AttachmentSupport = (doc.YZ_Plane, [""])
sketch33.MapMode = "FlatFace"
sketch33.AttachmentOffset = App.Placement(V(0, 0, -9.54), App.Rotation())
sketch33.addGeometry(Part.Circle(V(-8.2, 92, 0), V(0, 0, 1), 2), False)
sketch33.addConstraint([
    Sketcher.Constraint("Diameter", 0, 4.0),
    Sketcher.Constraint("DistanceY", -1, 1, 0, 3, 92.0),
    Sketcher.Constraint("DistanceX", 0, 3, -1, 1, 8.193941),
])
pocket20 = doc.addObject("PartDesign::Pocket", "Pocket019")
body.addObject(pocket20)
pocket20.Profile = sketch33
pocket20.Type = "ThroughAll"

sketch34 = doc.addObject("Sketcher::SketchObject", "Sketch033")
body.addObject(sketch34)
sketch34.AttachmentSupport = (doc.YZ_Plane, [""])
sketch34.MapMode = "FlatFace"
sketch34.AttachmentOffset = App.Placement(V(0, 0, -69.999861), App.Rotation())
add_polygon(sketch34, [(-12, 8), (-19, 8), (-27, 16), (-27, 22), (-19, 30), (-12, 30), (-12, 24), (-19, 24), (-19, 15), (-12, 15)])
sketch34.addConstraint([
    Sketcher.Constraint("Horizontal", 0),
    Sketcher.Constraint("Vertical", 2),
    Sketcher.Constraint("Horizontal", 4),
    Sketcher.Constraint("Vertical", 5),
    Sketcher.Constraint("Horizontal", 6),
    Sketcher.Constraint("Vertical", 7),
    Sketcher.Constraint("Horizontal", 8),
    Sketcher.Constraint("Vertical", 9),
    Sketcher.Constraint("Perpendicular", 1, 3),
    Sketcher.Constraint("Vertical", 0, 2, 3, 2),
    Sketcher.Constraint("Vertical", 3, 2, 6, 2),
    Sketcher.Constraint("Vertical", 5, 2, 8, 2),
    Sketcher.Constraint("Equal", 2, 9),
    Sketcher.Constraint("Equal", 1, 3),
    Sketcher.Constraint("DistanceY", 5, 2, 5, 1, 6.0),
    Sketcher.Constraint("DistanceY", 7, 2, 7, 1, 9.0),
    Sketcher.Constraint("DistanceX", 0, 2, 0, 1, 7.5),
    Sketcher.Constraint("DistanceY", 2, 1, 2, 2, 6.6),
    Sketcher.Constraint("DistanceY", -1, 1, 3, 2, 30.0),
    Sketcher.Constraint("DistanceX", 0, 2, -1, 1, 19.06),
])
pad14 = doc.addObject("PartDesign::Pad", "Pad013")
body.addObject(pad14)
pad14.Profile = sketch34
pad14.Length = 17.5
pad14.Reversed = True

sketch35 = doc.addObject("Sketcher::SketchObject", "Sketch034")
body.addObject(sketch35)
sketch35.AttachmentSupport = (doc.XZ_Plane, [""])
sketch35.MapMode = "FlatFace"
add_polygon(sketch35, [(-7, 8), (-7, 15), (0, 15), (0, 8)])
add_polygon(sketch35, [(-37, 8), (-37, 15), (-30, 15), (-30, 8)])
sketch35.addConstraint([
    Sketcher.Constraint("Vertical", 0),
    Sketcher.Constraint("Horizontal", 1),
    Sketcher.Constraint("Vertical", 2),
    Sketcher.Constraint("Horizontal", 3),
    Sketcher.Constraint("Vertical", 4),
    Sketcher.Constraint("Horizontal", 5),
    Sketcher.Constraint("Vertical", 6),
    Sketcher.Constraint("Horizontal", 7),
    Sketcher.Constraint("PointOnObject", 1, 2, -2),
    Sketcher.Constraint("Horizontal", 1, 2, 4, 2),
    Sketcher.Constraint("Horizontal", 3, 2, 6, 2),
    Sketcher.Constraint("Equal", 3, 5),
    Sketcher.Constraint("DistanceY", 0, 1, 0, 2, 6.6),
    Sketcher.Constraint("DistanceY", -1, 1, 0, 2, 15.0),
    Sketcher.Constraint("DistanceX", 1, 1, 1, 2, 6.91),
    Sketcher.Constraint("DistanceX", 5, 2, 0, 2, 22.7),
])
pad15 = doc.addObject("PartDesign::Pad", "Pad014")
body.addObject(pad15)
pad15.Profile = sketch35
pad15.Length = 18.149714
pad15.Reversed = True

sketch36 = doc.addObject("Sketcher::SketchObject", "Sketch035")
body.addObject(sketch36)
sketch36.AttachmentSupport = (doc.XY_Plane, [""])
sketch36.MapMode = "FlatFace"
sketch36.AttachmentOffset = App.Placement(V(0, 0, 15), App.Rotation())
sketch36.addGeometry([
    Part.Circle(V(-32.5, 12.4, 0), V(0, 0, 1), 1.5),
    Part.Circle(V(-4, 12.4, 0), V(0, 0, 1), 1.5),
], False)
sketch36.addConstraint([
    Sketcher.Constraint("Equal", 0, 1),
    Sketcher.Constraint("Horizontal", 0, 3, 1, 3),
    Sketcher.Constraint("Diameter", 0, 3.0),
    Sketcher.Constraint("DistanceX", 0, 3, -1, 1, 32.54),
    Sketcher.Constraint("DistanceX", 1, 3, -1, 1, 3.98),
    Sketcher.Constraint("DistanceY", -1, 1, 0, 3, 12.409714),
])
pocket21 = doc.addObject("PartDesign::Pocket", "Pocket020")
body.addObject(pocket21)
pocket21.Profile = sketch36
pocket21.Type = "ThroughAll"

sketch37 = doc.addObject("Sketcher::SketchObject", "Sketch036")
body.addObject(sketch37)
sketch37.AttachmentSupport = (doc.XY_Plane, [""])
sketch37.MapMode = "FlatFace"
sketch37.AttachmentOffset = App.Placement(V(0, 0, 15), App.Rotation())
sketch37.addGeometry([
    Part.Circle(V(-32.5, 12.4, 0), V(0, 0, 1), 2),
    Part.Circle(V(-4, 12.4, 0), V(0, 0, 1), 2),
], False)
sketch37.addConstraint([
    Sketcher.Constraint("Equal", 0, 1),
    Sketcher.Constraint("Horizontal", 0, 3, 1, 3),
    Sketcher.Constraint("Diameter", 0, 4.0),
    Sketcher.Constraint("DistanceX", 0, 3, -1, 1, 32.54),
    Sketcher.Constraint("DistanceX", 1, 3, -1, 1, 3.98),
    Sketcher.Constraint("DistanceY", -1, 1, 0, 3, 12.409714),
])
pocket22 = doc.addObject("PartDesign::Pocket", "Pocket021")
body.addObject(pocket22)
pocket22.Profile = sketch37
pocket22.Length = 2

sketch38 = doc.addObject("Sketcher::SketchObject", "Sketch037")
body.addObject(sketch38)
sketch38.AttachmentSupport = (doc.XY_Plane, [""])
sketch38.MapMode = "FlatFace"
sketch38.AttachmentOffset = App.Placement(V(0, 0, 15), App.Rotation())
add_polygon(sketch38, [(-34, -3.8), (-34, -7.2), (-30.8, -7.2), (-30.8, -3.8)])
add_polygon(sketch38, [(-6, -3.8), (-6, -7.2), (-1.8, -7.2), (-1.8, -3.8)])
sketch38.addConstraint([
    Sketcher.Constraint("Vertical", 0),
    Sketcher.Constraint("Horizontal", 1),
    Sketcher.Constraint("Vertical", 2),
    Sketcher.Constraint("Horizontal", 3),
    Sketcher.Constraint("Vertical", 4),
    Sketcher.Constraint("Horizontal", 5),
    Sketcher.Constraint("Vertical", 6),
    Sketcher.Constraint("Horizontal", 7),
    Sketcher.Constraint("Horizontal", 1, 2, 4, 2),
    Sketcher.Constraint("Horizontal", 3, 2, 6, 2),
    Sketcher.Constraint("DistanceX", 0, 2, 5, 2, 32.170699),
    Sketcher.Constraint("DistanceX", 1, 1, 1, 2, 3.244883),
    Sketcher.Constraint("DistanceX", 5, 1, 5, 2, 4.171993),
    Sketcher.Constraint("DistanceY", 0, 2, 0, 1, 3.430305),
    Sketcher.Constraint("DistanceX", 0, 2, -1, 1, 34.015281),
    Sketcher.Constraint("DistanceY", 0, 2, -1, 1, 7.218249),
])
pad16 = doc.addObject("PartDesign::Pad", "Pad015")
body.addObject(pad16)
pad16.Profile = sketch38
pad16.Length = 6.6
pad16.Reversed = True

sketch39 = doc.addObject("Sketcher::SketchObject", "Sketch038")
body.addObject(sketch39)
sketch39.AttachmentSupport = (doc.XZ_Plane, [""])
sketch39.MapMode = "FlatFace"
sketch39.AttachmentOffset = App.Placement(V(0, 0, 11.56), App.Rotation())
add_polygon(sketch39, [(-30, -9), (-30, 8), (-7, 8), (-7, -9)])
sketch39.addConstraint([
    Sketcher.Constraint("Vertical", 0),
    Sketcher.Constraint("Horizontal", 1),
    Sketcher.Constraint("Vertical", 2),
    Sketcher.Constraint("Horizontal", 3),
    Sketcher.Constraint("DistanceX", 1, 1, 1, 2, 22.7),
    Sketcher.Constraint("DistanceY", 0, 1, 0, 2, 17.2),
    Sketcher.Constraint("DistanceY", -1, 1, 0, 2, 8.4),
    Sketcher.Constraint("DistanceX", 0, 2, -1, 1, 29.61),
])
pocket23 = doc.addObject("PartDesign::Pocket", "Pocket022")
body.addObject(pocket23)
pocket23.Profile = sketch39
pocket23.Type = "ThroughAll"
pocket23.Reversed = True

doc.recompute()
